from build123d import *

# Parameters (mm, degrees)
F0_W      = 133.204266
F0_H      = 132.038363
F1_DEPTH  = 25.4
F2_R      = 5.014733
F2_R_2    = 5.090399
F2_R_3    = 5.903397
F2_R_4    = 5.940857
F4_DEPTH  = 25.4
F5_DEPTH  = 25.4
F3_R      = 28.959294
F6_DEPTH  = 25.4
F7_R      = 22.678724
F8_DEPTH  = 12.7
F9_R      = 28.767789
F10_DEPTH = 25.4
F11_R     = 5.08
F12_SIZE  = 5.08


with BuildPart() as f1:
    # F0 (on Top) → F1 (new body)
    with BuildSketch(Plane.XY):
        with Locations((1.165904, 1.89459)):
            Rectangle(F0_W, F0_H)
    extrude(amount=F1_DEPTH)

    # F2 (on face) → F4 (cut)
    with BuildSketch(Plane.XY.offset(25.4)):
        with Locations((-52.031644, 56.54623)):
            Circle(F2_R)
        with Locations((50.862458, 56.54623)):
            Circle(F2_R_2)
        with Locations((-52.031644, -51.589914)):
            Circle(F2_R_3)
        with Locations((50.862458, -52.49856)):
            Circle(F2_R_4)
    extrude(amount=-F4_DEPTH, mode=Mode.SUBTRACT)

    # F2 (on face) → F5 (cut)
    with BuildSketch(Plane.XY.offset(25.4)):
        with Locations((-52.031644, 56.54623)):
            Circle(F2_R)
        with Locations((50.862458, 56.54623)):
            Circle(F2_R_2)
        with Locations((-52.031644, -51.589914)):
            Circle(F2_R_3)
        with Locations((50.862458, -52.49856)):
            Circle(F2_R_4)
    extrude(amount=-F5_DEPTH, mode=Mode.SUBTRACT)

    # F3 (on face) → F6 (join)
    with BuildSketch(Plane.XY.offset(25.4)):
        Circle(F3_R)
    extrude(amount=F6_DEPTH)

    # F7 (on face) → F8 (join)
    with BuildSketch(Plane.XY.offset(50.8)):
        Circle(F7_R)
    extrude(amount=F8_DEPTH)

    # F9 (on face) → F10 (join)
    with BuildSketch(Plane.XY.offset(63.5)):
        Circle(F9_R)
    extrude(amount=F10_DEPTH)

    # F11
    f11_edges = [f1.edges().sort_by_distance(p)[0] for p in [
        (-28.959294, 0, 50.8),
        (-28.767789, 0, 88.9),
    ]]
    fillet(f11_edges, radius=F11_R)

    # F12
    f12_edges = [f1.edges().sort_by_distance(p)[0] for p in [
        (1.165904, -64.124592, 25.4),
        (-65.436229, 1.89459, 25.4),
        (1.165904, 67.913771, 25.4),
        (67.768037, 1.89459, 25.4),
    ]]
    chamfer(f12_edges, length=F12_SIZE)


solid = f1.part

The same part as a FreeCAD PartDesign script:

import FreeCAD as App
import Part
import Sketcher
Q = App.Units.Quantity


def edges_at(feature, points):
    """Names of the edges that pass closest to the given points."""
    edges = feature.Shape.Edges
    near = lambda p: min(range(len(edges)), key=lambda i: edges[i].distToShape(Part.Vertex(*p))[0])
    return sorted({f"Edge{near(p) + 1}" for p in points})

doc = App.newDocument("Part")
body = doc.addObject("PartDesign::Body", "Body")

# Sketch on XY plane
sketch1 = doc.addObject("Sketcher::SketchObject", "Sketch")
body.addObject(sketch1)
sketch1.AttachmentSupport = (doc.XY_Plane, [""])
sketch1.MapMode = "FlatFace"
sketch1.addGeometry(Part.LineSegment(App.Vector(-65, 68, 0), App.Vector(-65, -64, 0)), False)
sketch1.addGeometry(Part.LineSegment(App.Vector(-65, -64, 0), App.Vector(68, -64, 0)), False)
sketch1.addGeometry(Part.LineSegment(App.Vector(68, -64, 0), App.Vector(68, 68, 0)), False)
sketch1.addGeometry(Part.LineSegment(App.Vector(68, 68, 0), App.Vector(-65, 68, 0)), False)
sketch1.addConstraint(Sketcher.Constraint("Coincident", 0, 2, 1, 1))
sketch1.addConstraint(Sketcher.Constraint("Coincident", 1, 2, 2, 1))
sketch1.addConstraint(Sketcher.Constraint("Coincident", 2, 2, 3, 1))
sketch1.addConstraint(Sketcher.Constraint("Coincident", 3, 2, 0, 1))
sketch1.addConstraint(Sketcher.Constraint("Vertical", 0))
sketch1.addConstraint(Sketcher.Constraint("Horizontal", 1))
sketch1.addConstraint(Sketcher.Constraint("Vertical", 2))
sketch1.addConstraint(Sketcher.Constraint("Horizontal", 3))
sketch1.addConstraint(Sketcher.Constraint("DistanceX", 1, 1, 1, 2, Q("133.204266 mm")))
sketch1.addConstraint(Sketcher.Constraint("DistanceY", 0, 2, 0, 1, Q("132.038363 mm")))
sketch1.addConstraint(Sketcher.Constraint("DistanceX", 0, 2, -1, 1, Q("65.436229 mm")))
sketch1.addConstraint(Sketcher.Constraint("DistanceY", 0, 2, -1, 1, Q("64.124591 mm")))
pad1 = doc.addObject("PartDesign::Pad", "Pad")
body.addObject(pad1)
pad1.Profile = sketch1
pad1.Length = Q("1 in")

# Sketch on XY plane
sketch2 = doc.addObject("Sketcher::SketchObject", "Sketch001")
body.addObject(sketch2)
sketch2.AttachmentSupport = (doc.XY_Plane, [""])
sketch2.MapMode = "FlatFace"
sketch2.AttachmentOffset = App.Placement(App.Vector(0, 0, 1 * 25.4), App.Rotation())
sketch2.addGeometry(Part.Circle(App.Vector(-52, 57, 0), App.Vector(0, 0, 1), 5), False)
sketch2.addGeometry(Part.Circle(App.Vector(51, 57, 0), App.Vector(0, 0, 1), 5), False)
sketch2.addGeometry(Part.Circle(App.Vector(-52, -52, 0), App.Vector(0, 0, 1), 6), False)
sketch2.addGeometry(Part.Circle(App.Vector(51, -52, 0), App.Vector(0, 0, 1), 6), False)
sketch2.addConstraint(Sketcher.Constraint("Horizontal", 0, 3, 1, 3))
sketch2.addConstraint(Sketcher.Constraint("Vertical", 0, 3, 2, 3))
sketch2.addConstraint(Sketcher.Constraint("Vertical", 1, 3, 3, 3))
sketch2.addConstraint(Sketcher.Constraint("Diameter", 0, Q("10.029466 mm")))
sketch2.addConstraint(Sketcher.Constraint("Diameter", 1, Q("10.180798 mm")))
sketch2.addConstraint(Sketcher.Constraint("Diameter", 2, Q("11.806794 mm")))
sketch2.addConstraint(Sketcher.Constraint("Diameter", 3, Q("11.881714 mm")))
sketch2.addConstraint(Sketcher.Constraint("DistanceY", -1, 1, 0, 3, Q("56.54623 mm")))
sketch2.addConstraint(Sketcher.Constraint("DistanceY", 3, 3, -1, 1, Q("52.49856 mm")))
sketch2.addConstraint(Sketcher.Constraint("DistanceX", 0, 3, -1, 1, Q("52.031644 mm")))
sketch2.addConstraint(Sketcher.Constraint("DistanceX", -1, 1, 1, 3, Q("50.862458 mm")))
sketch2.addConstraint(Sketcher.Constraint("DistanceY", 2, 3, -1, 1, Q("51.589914 mm")))
pocket1 = doc.addObject("PartDesign::Pocket", "Pocket")
body.addObject(pocket1)
pocket1.Profile = sketch2
pocket1.Length = Q("1 in")

# Sketch on XY plane
sketch3 = doc.addObject("Sketcher::SketchObject", "Sketch002")
body.addObject(sketch3)
sketch3.AttachmentSupport = (doc.XY_Plane, [""])
sketch3.MapMode = "FlatFace"
sketch3.AttachmentOffset = App.Placement(App.Vector(0, 0, 1 * 25.4), App.Rotation())
sketch3.addGeometry(Part.Circle(App.Vector(-52, 57, 0), App.Vector(0, 0, 1), 5), False)
sketch3.addGeometry(Part.Circle(App.Vector(51, 57, 0), App.Vector(0, 0, 1), 5), False)
sketch3.addGeometry(Part.Circle(App.Vector(-52, -52, 0), App.Vector(0, 0, 1), 6), False)
sketch3.addGeometry(Part.Circle(App.Vector(51, -52, 0), App.Vector(0, 0, 1), 6), False)
sketch3.addConstraint(Sketcher.Constraint("Horizontal", 0, 3, 1, 3))
sketch3.addConstraint(Sketcher.Constraint("Vertical", 0, 3, 2, 3))
sketch3.addConstraint(Sketcher.Constraint("Vertical", 1, 3, 3, 3))
sketch3.addConstraint(Sketcher.Constraint("Diameter", 0, Q("10.029466 mm")))
sketch3.addConstraint(Sketcher.Constraint("Diameter", 1, Q("10.180798 mm")))
sketch3.addConstraint(Sketcher.Constraint("Diameter", 2, Q("11.806794 mm")))
sketch3.addConstraint(Sketcher.Constraint("Diameter", 3, Q("11.881714 mm")))
sketch3.addConstraint(Sketcher.Constraint("DistanceY", -1, 1, 0, 3, Q("56.54623 mm")))
sketch3.addConstraint(Sketcher.Constraint("DistanceY", 3, 3, -1, 1, Q("52.49856 mm")))
sketch3.addConstraint(Sketcher.Constraint("DistanceX", 0, 3, -1, 1, Q("52.031644 mm")))
sketch3.addConstraint(Sketcher.Constraint("DistanceX", -1, 1, 1, 3, Q("50.862458 mm")))
sketch3.addConstraint(Sketcher.Constraint("DistanceY", 2, 3, -1, 1, Q("51.589914 mm")))
pocket2 = doc.addObject("PartDesign::Pocket", "Pocket001")
body.addObject(pocket2)
pocket2.Profile = sketch3
pocket2.Length = Q("1 in")

# Sketch on XY plane
sketch4 = doc.addObject("Sketcher::SketchObject", "Sketch003")
body.addObject(sketch4)
sketch4.AttachmentSupport = (doc.XY_Plane, [""])
sketch4.MapMode = "FlatFace"
sketch4.AttachmentOffset = App.Placement(App.Vector(0, 0, 1 * 25.4), App.Rotation())
sketch4.addGeometry(Part.Circle(App.Vector(0, 0, 0), App.Vector(0, 0, 1), 29), False)
sketch4.addConstraint(Sketcher.Constraint("Coincident", 0, 3, -1, 1))
sketch4.addConstraint(Sketcher.Constraint("Diameter", 0, Q("57.918588 mm")))
pad2 = doc.addObject("PartDesign::Pad", "Pad001")
body.addObject(pad2)
pad2.Profile = sketch4
pad2.Length = Q("1 in")

# Sketch on XY plane
sketch5 = doc.addObject("Sketcher::SketchObject", "Sketch004")
body.addObject(sketch5)
sketch5.AttachmentSupport = (doc.XY_Plane, [""])
sketch5.MapMode = "FlatFace"
sketch5.AttachmentOffset = App.Placement(App.Vector(0, 0, 2 * 25.4), App.Rotation())
sketch5.addGeometry(Part.Circle(App.Vector(0, 0, 0), App.Vector(0, 0, 1), 23), False)
sketch5.addConstraint(Sketcher.Constraint("Coincident", 0, 3, -1, 1))
sketch5.addConstraint(Sketcher.Constraint("Diameter", 0, Q("45.357448 mm")))
pad3 = doc.addObject("PartDesign::Pad", "Pad002")
body.addObject(pad3)
pad3.Profile = sketch5
pad3.Length = Q("0.5 in")

# Sketch on XY plane
sketch6 = doc.addObject("Sketcher::SketchObject", "Sketch005")
body.addObject(sketch6)
sketch6.AttachmentSupport = (doc.XY_Plane, [""])
sketch6.MapMode = "FlatFace"
sketch6.AttachmentOffset = App.Placement(App.Vector(0, 0, 2.5 * 25.4), App.Rotation())
sketch6.addGeometry(Part.Circle(App.Vector(0, 0, 0), App.Vector(0, 0, 1), 29), False)
sketch6.addConstraint(Sketcher.Constraint("Coincident", 0, 3, -1, 1))
sketch6.addConstraint(Sketcher.Constraint("Diameter", 0, Q("57.535578 mm")))
pad4 = doc.addObject("PartDesign::Pad", "Pad003")
body.addObject(pad4)
pad4.Profile = sketch6
pad4.Length = Q("1 in")
doc.recompute()

fillet = doc.addObject("PartDesign::Fillet", "Fillet")
body.addObject(fillet)
fillet.Base = (pad4, edges_at(pad4, [(-28.959, 0, 50.8), (-28.768, 0, 88.9)]))
fillet.Radius = Q("0.2 in")
doc.recompute()

chamfer = doc.addObject("PartDesign::Chamfer", "Chamfer")
body.addObject(chamfer)
chamfer.Base = (fillet, edges_at(fillet, [
    (1.166, -64.125, 25.4),
    (-65.436, 1.895, 25.4),
    (1.166, 67.914, 25.4),
    (67.768, 1.895, 25.4),
]))
chamfer.Size = Q("0.2 in")

doc.recompute()
